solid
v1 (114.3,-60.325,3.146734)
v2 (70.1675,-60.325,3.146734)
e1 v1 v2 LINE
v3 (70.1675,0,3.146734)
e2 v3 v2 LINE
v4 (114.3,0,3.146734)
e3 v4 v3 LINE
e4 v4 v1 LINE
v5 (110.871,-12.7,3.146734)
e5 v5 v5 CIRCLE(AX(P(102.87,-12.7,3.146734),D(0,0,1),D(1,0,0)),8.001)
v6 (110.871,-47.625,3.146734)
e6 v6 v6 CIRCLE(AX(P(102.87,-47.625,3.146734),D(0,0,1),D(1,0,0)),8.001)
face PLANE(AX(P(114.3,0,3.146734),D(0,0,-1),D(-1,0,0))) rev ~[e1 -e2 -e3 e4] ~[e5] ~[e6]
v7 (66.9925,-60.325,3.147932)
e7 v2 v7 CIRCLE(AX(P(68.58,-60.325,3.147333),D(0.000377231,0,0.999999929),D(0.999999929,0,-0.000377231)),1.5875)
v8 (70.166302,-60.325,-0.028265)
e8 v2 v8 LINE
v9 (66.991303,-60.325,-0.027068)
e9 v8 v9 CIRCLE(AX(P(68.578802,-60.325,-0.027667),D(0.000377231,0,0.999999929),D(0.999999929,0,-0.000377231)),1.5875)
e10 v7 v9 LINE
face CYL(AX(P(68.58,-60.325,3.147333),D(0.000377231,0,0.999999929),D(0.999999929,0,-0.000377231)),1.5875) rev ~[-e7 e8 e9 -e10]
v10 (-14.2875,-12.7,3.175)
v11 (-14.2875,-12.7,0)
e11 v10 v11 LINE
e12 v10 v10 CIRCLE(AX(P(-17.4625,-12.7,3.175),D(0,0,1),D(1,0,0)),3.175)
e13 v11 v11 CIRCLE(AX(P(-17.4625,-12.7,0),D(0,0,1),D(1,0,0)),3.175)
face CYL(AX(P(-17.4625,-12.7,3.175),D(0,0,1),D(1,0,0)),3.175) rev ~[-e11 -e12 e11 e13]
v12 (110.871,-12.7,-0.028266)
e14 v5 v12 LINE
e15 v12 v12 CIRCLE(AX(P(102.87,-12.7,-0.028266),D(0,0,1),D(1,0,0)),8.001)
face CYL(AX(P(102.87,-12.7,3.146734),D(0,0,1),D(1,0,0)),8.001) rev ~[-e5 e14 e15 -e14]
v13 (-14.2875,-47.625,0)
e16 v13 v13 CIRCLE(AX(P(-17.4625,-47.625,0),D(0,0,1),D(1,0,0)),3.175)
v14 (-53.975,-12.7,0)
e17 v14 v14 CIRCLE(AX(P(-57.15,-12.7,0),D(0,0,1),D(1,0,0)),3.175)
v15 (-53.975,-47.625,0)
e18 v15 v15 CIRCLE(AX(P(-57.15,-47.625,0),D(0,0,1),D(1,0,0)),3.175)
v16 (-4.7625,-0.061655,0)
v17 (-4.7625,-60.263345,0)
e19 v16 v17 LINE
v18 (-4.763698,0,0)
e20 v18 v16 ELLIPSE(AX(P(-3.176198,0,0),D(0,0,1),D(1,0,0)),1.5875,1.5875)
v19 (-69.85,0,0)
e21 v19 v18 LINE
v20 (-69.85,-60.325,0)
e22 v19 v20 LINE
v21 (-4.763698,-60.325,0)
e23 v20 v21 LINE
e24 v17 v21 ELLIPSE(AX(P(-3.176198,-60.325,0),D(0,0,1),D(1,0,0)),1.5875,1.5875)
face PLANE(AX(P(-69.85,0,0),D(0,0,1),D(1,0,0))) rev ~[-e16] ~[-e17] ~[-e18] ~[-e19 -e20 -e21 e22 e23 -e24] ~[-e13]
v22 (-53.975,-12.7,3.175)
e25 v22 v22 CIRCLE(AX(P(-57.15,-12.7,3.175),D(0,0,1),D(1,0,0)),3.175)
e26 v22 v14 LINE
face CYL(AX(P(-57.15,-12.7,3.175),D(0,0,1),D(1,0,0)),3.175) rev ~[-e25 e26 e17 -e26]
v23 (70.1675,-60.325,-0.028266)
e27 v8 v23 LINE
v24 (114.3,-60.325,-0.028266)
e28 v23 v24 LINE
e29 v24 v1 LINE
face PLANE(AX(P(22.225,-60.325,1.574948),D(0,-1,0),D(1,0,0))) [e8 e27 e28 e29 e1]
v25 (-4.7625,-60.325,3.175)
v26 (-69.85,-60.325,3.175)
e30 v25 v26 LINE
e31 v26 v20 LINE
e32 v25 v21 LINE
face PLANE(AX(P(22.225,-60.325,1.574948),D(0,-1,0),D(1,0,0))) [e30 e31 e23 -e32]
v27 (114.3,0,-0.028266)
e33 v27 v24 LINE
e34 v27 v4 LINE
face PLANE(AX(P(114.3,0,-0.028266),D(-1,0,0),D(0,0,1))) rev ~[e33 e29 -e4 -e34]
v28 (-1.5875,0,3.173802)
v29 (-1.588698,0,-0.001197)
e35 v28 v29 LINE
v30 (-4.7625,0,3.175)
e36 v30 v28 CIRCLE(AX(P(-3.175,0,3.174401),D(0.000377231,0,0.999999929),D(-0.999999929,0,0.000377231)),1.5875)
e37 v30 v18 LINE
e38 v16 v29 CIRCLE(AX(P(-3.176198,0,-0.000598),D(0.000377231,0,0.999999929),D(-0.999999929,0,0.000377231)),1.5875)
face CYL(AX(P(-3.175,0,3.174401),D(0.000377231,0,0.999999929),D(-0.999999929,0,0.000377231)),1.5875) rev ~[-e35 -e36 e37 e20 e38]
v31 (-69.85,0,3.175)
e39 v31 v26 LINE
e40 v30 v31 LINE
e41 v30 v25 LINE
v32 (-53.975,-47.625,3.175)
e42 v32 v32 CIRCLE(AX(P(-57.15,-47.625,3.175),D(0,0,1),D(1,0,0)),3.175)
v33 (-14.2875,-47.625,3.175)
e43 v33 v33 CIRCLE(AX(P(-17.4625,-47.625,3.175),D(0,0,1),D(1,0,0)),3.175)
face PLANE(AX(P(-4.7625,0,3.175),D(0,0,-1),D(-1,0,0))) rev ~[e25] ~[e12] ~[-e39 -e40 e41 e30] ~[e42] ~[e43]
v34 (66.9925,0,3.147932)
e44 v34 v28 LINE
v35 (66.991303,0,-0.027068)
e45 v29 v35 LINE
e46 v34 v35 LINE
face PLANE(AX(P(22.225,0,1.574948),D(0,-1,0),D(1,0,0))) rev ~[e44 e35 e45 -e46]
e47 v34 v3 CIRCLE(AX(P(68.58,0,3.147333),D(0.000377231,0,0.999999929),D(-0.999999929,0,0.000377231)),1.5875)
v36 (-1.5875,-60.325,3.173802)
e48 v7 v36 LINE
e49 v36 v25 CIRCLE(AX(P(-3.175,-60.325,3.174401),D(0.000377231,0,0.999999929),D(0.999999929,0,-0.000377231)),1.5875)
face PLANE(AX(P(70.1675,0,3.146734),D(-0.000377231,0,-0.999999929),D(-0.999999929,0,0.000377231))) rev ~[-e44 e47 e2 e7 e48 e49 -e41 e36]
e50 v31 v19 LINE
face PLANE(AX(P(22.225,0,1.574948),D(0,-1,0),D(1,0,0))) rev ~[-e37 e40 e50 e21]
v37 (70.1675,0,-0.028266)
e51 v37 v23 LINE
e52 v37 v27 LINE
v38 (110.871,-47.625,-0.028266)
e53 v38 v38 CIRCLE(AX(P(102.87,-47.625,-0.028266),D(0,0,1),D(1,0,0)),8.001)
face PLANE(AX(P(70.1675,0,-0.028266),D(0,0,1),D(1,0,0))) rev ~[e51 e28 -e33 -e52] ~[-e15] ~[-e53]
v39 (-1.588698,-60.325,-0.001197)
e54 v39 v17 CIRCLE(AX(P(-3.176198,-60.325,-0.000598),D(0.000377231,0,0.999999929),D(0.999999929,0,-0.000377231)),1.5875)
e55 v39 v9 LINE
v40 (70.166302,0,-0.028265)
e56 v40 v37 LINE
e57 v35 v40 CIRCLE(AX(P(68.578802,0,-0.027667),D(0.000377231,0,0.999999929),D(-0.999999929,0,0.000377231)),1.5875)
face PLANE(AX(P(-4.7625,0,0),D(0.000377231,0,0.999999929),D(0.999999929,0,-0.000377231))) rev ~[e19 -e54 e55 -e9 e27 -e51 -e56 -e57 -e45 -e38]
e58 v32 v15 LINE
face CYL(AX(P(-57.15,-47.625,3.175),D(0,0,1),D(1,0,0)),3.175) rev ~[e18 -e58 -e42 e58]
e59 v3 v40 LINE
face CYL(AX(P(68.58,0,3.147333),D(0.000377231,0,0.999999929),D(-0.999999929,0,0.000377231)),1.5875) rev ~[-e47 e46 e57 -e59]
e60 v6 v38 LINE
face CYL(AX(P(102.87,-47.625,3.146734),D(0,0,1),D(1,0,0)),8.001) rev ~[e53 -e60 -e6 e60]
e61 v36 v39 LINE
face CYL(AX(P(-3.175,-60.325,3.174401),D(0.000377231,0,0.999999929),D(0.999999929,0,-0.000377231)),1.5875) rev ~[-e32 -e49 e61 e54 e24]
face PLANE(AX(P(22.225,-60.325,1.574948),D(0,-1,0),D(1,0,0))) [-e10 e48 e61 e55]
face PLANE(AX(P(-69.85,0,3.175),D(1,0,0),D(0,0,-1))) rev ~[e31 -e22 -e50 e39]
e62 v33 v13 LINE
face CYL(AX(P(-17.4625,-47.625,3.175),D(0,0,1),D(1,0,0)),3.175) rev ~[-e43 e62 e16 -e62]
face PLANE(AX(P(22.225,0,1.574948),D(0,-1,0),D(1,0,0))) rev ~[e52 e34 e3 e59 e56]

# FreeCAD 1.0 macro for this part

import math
import FreeCAD as App
import Part
import Sketcher

V = App.Vector
Q = App.Units.Quantity

doc = App.newDocument("Part")
body = doc.addObject("PartDesign::Body", "Body")

# Sketch on XZ plane
sketch1 = body.newObject("Sketcher::SketchObject", "Sketch")
sketch1.AttachmentSupport = (doc.getObject("XZ_Plane"), [""])
sketch1.MapMode = "FlatFace"
sketch1.addGeometry(Part.LineSegment(V(-4.7625, 3.175, 0), V(-69.85, 3.175, 0)), False)
sketch1.addGeometry(Part.LineSegment(V(-69.85, 3.175, 0), V(-69.85, 0, 0)), False)
sketch1.addGeometry(Part.LineSegment(V(-69.85, 0, 0), V(-4.7625, 0, 0)), False)
sketch1.addGeometry(Part.LineSegment(V(-4.7625, 0, 0), V(70.1675, -0.028266, 0)), False)
sketch1.addGeometry(Part.LineSegment(V(70.1675, -0.028266, 0), V(114.3, -0.028266, 0)), False)
sketch1.addGeometry(Part.LineSegment(V(114.3, -0.028266, 0), V(114.3, 3.146734, 0)), False)
sketch1.addGeometry(Part.LineSegment(V(114.3, 3.146734, 0), V(70.1675, 3.146734, 0)), False)
sketch1.addGeometry(Part.LineSegment(V(70.1675, 3.146734, 0), V(-4.7625, 3.175, 0)), False)
sketch1.addConstraint(Sketcher.Constraint("Coincident", 0, 2, 1, 1))
sketch1.addConstraint(Sketcher.Constraint("Coincident", 1, 2, 2, 1))
sketch1.addConstraint(Sketcher.Constraint("Coincident", 2, 2, 3, 1))
sketch1.addConstraint(Sketcher.Constraint("Coincident", 3, 2, 4, 1))
sketch1.addConstraint(Sketcher.Constraint("Coincident", 4, 2, 5, 1))
sketch1.addConstraint(Sketcher.Constraint("Coincident", 5, 2, 6, 1))
sketch1.addConstraint(Sketcher.Constraint("Coincident", 6, 2, 7, 1))
sketch1.addConstraint(Sketcher.Constraint("Coincident", 7, 2, 0, 1))
sketch1.addConstraint(Sketcher.Constraint("Horizontal", 0))
sketch1.addConstraint(Sketcher.Constraint("Vertical", 1))
sketch1.addConstraint(Sketcher.Constraint("Horizontal", 2))
sketch1.addConstraint(Sketcher.Constraint("Horizontal", 4))
sketch1.addConstraint(Sketcher.Constraint("Vertical", 5))
sketch1.addConstraint(Sketcher.Constraint("Horizontal", 6))
sketch1.addConstraint(Sketcher.Constraint("PointOnObject", 1, 2, -1))
sketch1.addConstraint(Sketcher.Constraint("Parallel", 3, 7))
sketch1.addConstraint(Sketcher.Constraint("Vertical", 3, 2, 6, 2))
sketch1.addConstraint(Sketcher.Constraint("Vertical", 2, 2, 7, 2))
sketch1.addConstraint(Sketcher.Constraint("DistanceX", -1, 1, 4, 2, Q("4.5 in")))
sketch1.addConstraint(Sketcher.Constraint("DistanceX", 0, 2, 0, 1, Q("2.5625 in")))
sketch1.addConstraint(Sketcher.Constraint("DistanceY", 1, 2, 1, 1, Q("0.125 in")))
sketch1.addConstraint(Sketcher.Constraint("DistanceX", 0, 2, -1, 1, Q("2.75 in")))
sketch1.addConstraint(Sketcher.Constraint("DistanceX", 2, 2, 3, 2, Q("2.95 in")))
sketch1.addConstraint(Sketcher.Constraint("DistanceY", 3, 2, -1, 1, Q("0.028266 mm")))
pad1 = body.newObject("PartDesign::Pad", "Pad")
pad1.Profile = sketch1
pad1.Length = Q("2.375 in")

# Sketch on XY plane
sketch2 = body.newObject("Sketcher::SketchObject", "Sketch001")
sketch2.AttachmentSupport = (doc.getObject("XY_Plane"), [""])
sketch2.MapMode = "FlatFace"
sketch2.AttachmentOffset = App.Placement(V(0, 0, 3.146734), App.Rotation())
sketch2.addGeometry(Part.Circle(V(102.87, -12.7, 0), V(0, 0, 1), 8.001), False)
sketch2.addGeometry(Part.Circle(V(102.87, -47.625, 0), V(0, 0, 1), 8.001), False)
sketch2.addConstraint(Sketcher.Constraint("Equal", 0, 1))
sketch2.addConstraint(Sketcher.Constraint("Vertical", 0, 3, 1, 3))
sketch2.addConstraint(Sketcher.Constraint("Diameter", 0, Q("0.63 in")))
sketch2.addConstraint(Sketcher.Constraint("DistanceY", 0, 3, -1, 1, Q("0.5 in")))
sketch2.addConstraint(Sketcher.Constraint("DistanceX", -1, 1, 0, 3, Q("4.05 in")))
sketch2.addConstraint(Sketcher.Constraint("DistanceY", 1, 3, -1, 1, Q("1.875 in")))
pocket1 = body.newObject("PartDesign::Pocket", "Pocket")
pocket1.Profile = sketch2
pocket1.Length = Q("1 in")

# Sketch on XY plane
sketch3 = body.newObject("Sketcher::SketchObject", "Sketch002")
sketch3.AttachmentSupport = (doc.getObject("XY_Plane"), [""])
sketch3.MapMode = "FlatFace"
sketch3.AttachmentOffset = App.Placement(V(0, 0, 0.125 * 25.4), App.Rotation())
sketch3.addGeometry(Part.Circle(V(-57.15, -12.7, 0), V(0, 0, 1), 3.175), False)
sketch3.addGeometry(Part.Circle(V(-57.15, -47.625, 0), V(0, 0, 1), 3.175), False)
sketch3.addConstraint(Sketcher.Constraint("Equal", 0, 1))
sketch3.addConstraint(Sketcher.Constraint("Vertical", 0, 3, 1, 3))
sketch3.addConstraint(Sketcher.Constraint("Diameter", 0, Q("0.25 in")))
sketch3.addConstraint(Sketcher.Constraint("DistanceY", 0, 3, -1, 1, Q("0.5 in")))
sketch3.addConstraint(Sketcher.Constraint("DistanceX", 0, 3, -1, 1, Q("2.25 in")))
sketch3.addConstraint(Sketcher.Constraint("DistanceY", 1, 3, -1, 1, Q("1.875 in")))
pocket2 = body.newObject("PartDesign::Pocket", "Pocket001")
pocket2.Profile = sketch3
pocket2.Length = Q("1 in")

# Sketch on XY plane
sketch4 = body.newObject("Sketcher::SketchObject", "Sketch003")
sketch4.AttachmentSupport = (doc.getObject("XY_Plane"), [""])
sketch4.MapMode = "FlatFace"
sketch4.AttachmentOffset = App.Placement(V(0, 0, 0.125 * 25.4), App.Rotation())
sketch4.addGeometry(Part.Circle(V(-17.4625, -12.7, 0), V(0, 0, 1), 3.175), False)
sketch4.addGeometry(Part.Circle(V(-17.4625, -47.625, 0), V(0, 0, 1), 3.175), False)
sketch4.addConstraint(Sketcher.Constraint("Equal", 0, 1))
sketch4.addConstraint(Sketcher.Constraint("Vertical", 0, 3, 1, 3))
sketch4.addConstraint(Sketcher.Constraint("Diameter", 0, Q("0.25 in")))
sketch4.addConstraint(Sketcher.Constraint("DistanceY", 0, 3, -1, 1, Q("0.5 in")))
sketch4.addConstraint(Sketcher.Constraint("DistanceX", 0, 3, -1, 1, Q("0.6875 in")))
sketch4.addConstraint(Sketcher.Constraint("DistanceY", 1, 3, -1, 1, Q("1.875 in")))
pocket3 = body.newObject("PartDesign::Pocket", "Pocket002")
pocket3.Profile = sketch4
pocket3.Length = Q("1 in")

# Sketch on an angled plane
sketch5 = body.newObject("Sketcher::SketchObject", "Sketch004")
sketch5.Placement = App.Placement(V(0.001197, 0, 3.173203), App.Rotation(V(0.999999929, 0, -0.000377231), V(0, 1, 0), V(0.000377231, 0, 0.999999929), "ZXY"))
sketch5.addGeometry(Part.ArcOfCircle(Part.Circle(V(-3.176197, -60.325, 0), V(0, 0, 1), 1.5875), math.radians(0), math.radians(180)), False)
sketch5.addGeometry(Part.LineSegment(V(-4.763697, -60.325, 0), V(-1.588697, -60.325, 0)), False)
sketch5.addGeometry(Part.ArcOfCircle(Part.Circle(V(68.578808, -60.325, 0), V(0, 0, 1), 1.5875), math.radians(0), math.radians(180)), False)
sketch5.addGeometry(Part.LineSegment(V(66.991308, -60.325, 0), V(70.166308, -60.325, 0)), False)
sketch5.addGeometry(Part.LineSegment(V(70.166308, 0, 0), V(66.991308, 0, 0)), False)
sketch5.addGeometry(Part.ArcOfCircle(Part.Circle(V(68.578808, 0, 0), V(0, 0, 1), 1.5875), math.radians(180), math.radians(360)), False)
sketch5.addGeometry(Part.LineSegment(V(-1.588697, 0, 0), V(-4.763697, 0, 0)), False)
sketch5.addGeometry(Part.ArcOfCircle(Part.Circle(V(-3.176197, 0, 0), V(0, 0, 1), 1.5875), math.radians(180), math.radians(360)), False)
sketch5.addConstraint(Sketcher.Constraint("Coincident", 0, 1, 1, 2))
sketch5.addConstraint(Sketcher.Constraint("Coincident", 1, 1, 0, 2))
sketch5.addConstraint(Sketcher.Constraint("Coincident", 2, 1, 3, 2))
sketch5.addConstraint(Sketcher.Constraint("Coincident", 3, 1, 2, 2))
sketch5.addConstraint(Sketcher.Constraint("Coincident", 4, 1, 5, 2))
sketch5.addConstraint(Sketcher.Constraint("Coincident", 5, 1, 4, 2))
sketch5.addConstraint(Sketcher.Constraint("Coincident", 6, 1, 7, 2))
sketch5.addConstraint(Sketcher.Constraint("Coincident", 7, 1, 6, 2))
sketch5.addConstraint(Sketcher.Constraint("Horizontal", 1))
sketch5.addConstraint(Sketcher.Constraint("Horizontal", 3))
sketch5.addConstraint(Sketcher.Constraint("Horizontal", 4))
sketch5.addConstraint(Sketcher.Constraint("Horizontal", 6))
sketch5.addConstraint(Sketcher.Constraint("Equal", 0, 2))
sketch5.addConstraint(Sketcher.Constraint("Equal", 2, 5))
sketch5.addConstraint(Sketcher.Constraint("Equal", 5, 7))
sketch5.addConstraint(Sketcher.Constraint("PointOnObject", 5, 3, -1))
sketch5.addConstraint(Sketcher.Constraint("PointOnObject", 7, 3, -1))
sketch5.addConstraint(Sketcher.Constraint("PointOnObject", 4, 1, -1))
sketch5.addConstraint(Sketcher.Constraint("PointOnObject", 6, 1, -1))
sketch5.addConstraint(Sketcher.Constraint("Horizontal", 0, 3, 2, 3))
sketch5.addConstraint(Sketcher.Constraint("Horizontal", 2, 3, 0, 1))
sketch5.addConstraint(Sketcher.Constraint("Horizontal", 1, 1, 2, 1))
sketch5.addConstraint(Sketcher.Constraint("Vertical", 2, 3, 5, 3))
sketch5.addConstraint(Sketcher.Constraint("Vertical", 0, 3, 7, 3))
sketch5.addConstraint(Sketcher.Constraint("Radius", 0, Q("0.0625 in")))
sketch5.addConstraint(Sketcher.Constraint("DistanceY", 0, 3, -1, 1, Q("2.375 in")))
sketch5.addConstraint(Sketcher.Constraint("DistanceX", 0, 3, -1, 1, Q("3.176197 mm")))
sketch5.addConstraint(Sketcher.Constraint("DistanceX", -1, 1, 2, 3, Q("68.578808 mm")))
pocket4 = body.newObject("PartDesign::Pocket", "Pocket003")
pocket4.Profile = sketch5
pocket4.Length = Q("1 in")

doc.recompute()
